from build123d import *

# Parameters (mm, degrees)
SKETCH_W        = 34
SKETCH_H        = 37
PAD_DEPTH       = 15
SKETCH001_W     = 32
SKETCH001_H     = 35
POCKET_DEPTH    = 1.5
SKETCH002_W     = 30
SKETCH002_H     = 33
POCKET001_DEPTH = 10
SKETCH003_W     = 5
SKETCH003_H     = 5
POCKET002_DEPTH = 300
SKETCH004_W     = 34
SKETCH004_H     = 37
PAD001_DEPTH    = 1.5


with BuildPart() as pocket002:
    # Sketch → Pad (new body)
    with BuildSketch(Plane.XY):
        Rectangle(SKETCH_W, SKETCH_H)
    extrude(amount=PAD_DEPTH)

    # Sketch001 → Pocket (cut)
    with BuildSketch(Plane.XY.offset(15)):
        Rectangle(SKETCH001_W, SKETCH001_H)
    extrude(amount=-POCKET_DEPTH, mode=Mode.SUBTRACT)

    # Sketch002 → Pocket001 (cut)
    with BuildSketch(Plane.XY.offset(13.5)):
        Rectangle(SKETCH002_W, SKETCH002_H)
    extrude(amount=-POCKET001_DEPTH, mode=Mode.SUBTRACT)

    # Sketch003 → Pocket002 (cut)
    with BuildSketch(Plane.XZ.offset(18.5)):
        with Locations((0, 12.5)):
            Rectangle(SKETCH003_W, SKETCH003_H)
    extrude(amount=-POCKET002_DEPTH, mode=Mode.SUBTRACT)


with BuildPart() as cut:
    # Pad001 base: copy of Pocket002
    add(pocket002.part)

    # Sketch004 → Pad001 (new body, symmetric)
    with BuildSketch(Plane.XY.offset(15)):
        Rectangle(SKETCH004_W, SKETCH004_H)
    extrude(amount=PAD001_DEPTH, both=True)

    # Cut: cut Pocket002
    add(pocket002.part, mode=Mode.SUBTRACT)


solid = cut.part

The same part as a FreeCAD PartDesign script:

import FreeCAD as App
import Part
import Sketcher
from FreeCAD import Vector

doc = App.newDocument("Part")
params = doc.addObject("Spreadsheet::Sheet", "Params")
for row, (alias, value) in enumerate([
    ("sketch1_width", "34 mm"),
    ("sketch1_height", "37 mm"),
    ("pad1_length", "15 mm"),
    ("sketch2_width", "32 mm"),
    ("sketch2_height", "35 mm"),
    ("pocket1_length", "1.5 mm"),
    ("sketch3_width", "30 mm"),
    ("sketch3_height", "33 mm"),
    ("pocket2_length", "10 mm"),
    ("sketch4_width", "5 mm"),
    ("pocket3_length", "300 mm"),
    ("sketch5_width", "34 mm"),
    ("sketch5_height", "37 mm"),
    ("pad2_length", "3 mm"),
], start=1):
    params.set(f"A{row}", alias)
    params.set(f"B{row}", "=" + value)
    params.setAlias(f"B{row}", alias)

body = doc.addObject("PartDesign::Body", "Body")

# Sketch on XY plane
sketch1 = doc.addObject("Sketcher::SketchObject", "Sketch")
body.addObject(sketch1)
sketch1.AttachmentSupport = (doc.XY_Plane, [""])
sketch1.MapMode = "FlatFace"
sketch1.addGeometry(Part.LineSegment(Vector(-17, 18, 0), Vector(-17, -18, 0)), False)
sketch1.addGeometry(Part.LineSegment(Vector(-17, -18, 0), Vector(17, -18, 0)), False)
sketch1.addGeometry(Part.LineSegment(Vector(17, -18, 0), Vector(17, 18, 0)), False)
sketch1.addGeometry(Part.LineSegment(Vector(17, 18, 0), Vector(-17, 18, 0)), False)
sketch1.addConstraint(Sketcher.Constraint("Coincident", 0, 2, 1, 1))
sketch1.addConstraint(Sketcher.Constraint("Coincident", 1, 2, 2, 1))
sketch1.addConstraint(Sketcher.Constraint("Coincident", 2, 2, 3, 1))
sketch1.addConstraint(Sketcher.Constraint("Coincident", 3, 2, 0, 1))
sketch1.addConstraint(Sketcher.Constraint("Vertical", 0))
sketch1.addConstraint(Sketcher.Constraint("Horizontal", 1))
sketch1.addConstraint(Sketcher.Constraint("Vertical", 2))
sketch1.addConstraint(Sketcher.Constraint("Horizontal", 3))
sketch1.addConstraint(Sketcher.Constraint("Symmetric", 0, 2, 2, 2, -1, 1))
sketch1.addConstraint(Sketcher.Constraint("DistanceX", 1, 1, 1, 2, 34.0))
sketch1.addConstraint(Sketcher.Constraint("DistanceY", 0, 2, 0, 1, 37.0))
sketch1.setExpression("Constraints[9]", "Params.sketch1_width")
sketch1.setExpression("Constraints[10]", "Params.sketch1_height")
pad1 = doc.addObject("PartDesign::Pad", "Pad")
body.addObject(pad1)
pad1.Profile = sketch1
pad1.setExpression("Length", "Params.pad1_length")

# Sketch on XY plane
sketch2 = doc.addObject("Sketcher::SketchObject", "Sketch001")
body.addObject(sketch2)
sketch2.AttachmentSupport = (doc.XY_Plane, [""])
sketch2.MapMode = "FlatFace"
sketch2.AttachmentOffset = App.Placement(Vector(0, 0, 15), App.Rotation())
sketch2.addGeometry(Part.LineSegment(Vector(-16, 18, 0), Vector(-16, -18, 0)), False)
sketch2.addGeometry(Part.LineSegment(Vector(-16, -18, 0), Vector(16, -18, 0)), False)
sketch2.addGeometry(Part.LineSegment(Vector(16, -18, 0), Vector(16, 18, 0)), False)
sketch2.addGeometry(Part.LineSegment(Vector(16, 18, 0), Vector(-16, 18, 0)), False)
sketch2.addConstraint(Sketcher.Constraint("Coincident", 0, 2, 1, 1))
sketch2.addConstraint(Sketcher.Constraint("Coincident", 1, 2, 2, 1))
sketch2.addConstraint(Sketcher.Constraint("Coincident", 2, 2, 3, 1))
sketch2.addConstraint(Sketcher.Constraint("Coincident", 3, 2, 0, 1))
sketch2.addConstraint(Sketcher.Constraint("Vertical", 0))
sketch2.addConstraint(Sketcher.Constraint("Horizontal", 1))
sketch2.addConstraint(Sketcher.Constraint("Vertical", 2))
sketch2.addConstraint(Sketcher.Constraint("Horizontal", 3))
sketch2.addConstraint(Sketcher.Constraint("Symmetric", 0, 2, 2, 2, -1, 1))
sketch2.addConstraint(Sketcher.Constraint("DistanceX", 1, 1, 1, 2, 32.0))
sketch2.addConstraint(Sketcher.Constraint("DistanceY", 0, 2, 0, 1, 35.0))
sketch2.setExpression("Constraints[9]", "Params.sketch2_width")
sketch2.setExpression("Constraints[10]", "Params.sketch2_height")
pocket1 = doc.addObject("PartDesign::Pocket", "Pocket")
body.addObject(pocket1)
pocket1.Profile = sketch2
pocket1.setExpression("Length", "Params.pocket1_length")

# Sketch on XY plane
sketch3 = doc.addObject("Sketcher::SketchObject", "Sketch002")
body.addObject(sketch3)
sketch3.AttachmentSupport = (doc.XY_Plane, [""])
sketch3.MapMode = "FlatFace"
sketch3.AttachmentOffset = App.Placement(Vector(0, 0, 13.5), App.Rotation())
sketch3.addGeometry(Part.LineSegment(Vector(-15, 16, 0), Vector(-15, -16, 0)), False)
sketch3.addGeometry(Part.LineSegment(Vector(-15, -16, 0), Vector(15, -16, 0)), False)
sketch3.addGeometry(Part.LineSegment(Vector(15, -16, 0), Vector(15, 16, 0)), False)
sketch3.addGeometry(Part.LineSegment(Vector(15, 16, 0), Vector(-15, 16, 0)), False)
sketch3.addConstraint(Sketcher.Constraint("Coincident", 0, 2, 1, 1))
sketch3.addConstraint(Sketcher.Constraint("Coincident", 1, 2, 2, 1))
sketch3.addConstraint(Sketcher.Constraint("Coincident", 2, 2, 3, 1))
sketch3.addConstraint(Sketcher.Constraint("Coincident", 3, 2, 0, 1))
sketch3.addConstraint(Sketcher.Constraint("Vertical", 0))
sketch3.addConstraint(Sketcher.Constraint("Horizontal", 1))
sketch3.addConstraint(Sketcher.Constraint("Vertical", 2))
sketch3.addConstraint(Sketcher.Constraint("Horizontal", 3))
sketch3.addConstraint(Sketcher.Constraint("Symmetric", 0, 2, 2, 2, -1, 1))
sketch3.addConstraint(Sketcher.Constraint("DistanceX", 1, 1, 1, 2, 30.0))
sketch3.addConstraint(Sketcher.Constraint("DistanceY", 0, 2, 0, 1, 33.0))
sketch3.setExpression("Constraints[9]", "Params.sketch3_width")
sketch3.setExpression("Constraints[10]", "Params.sketch3_height")
pocket2 = doc.addObject("PartDesign::Pocket", "Pocket001")
body.addObject(pocket2)
pocket2.Profile = sketch3
pocket2.setExpression("Length", "Params.pocket2_length")

# Sketch on XZ plane
sketch4 = doc.addObject("Sketcher::SketchObject", "Sketch003")
body.addObject(sketch4)
sketch4.AttachmentSupport = (doc.XZ_Plane, [""])
sketch4.MapMode = "FlatFace"
sketch4.AttachmentOffset = App.Placement(Vector(0, 0, 18.5), App.Rotation())
sketch4.addGeometry(Part.LineSegment(Vector(-2, 15, 0), Vector(-2, 10, 0)), False)
sketch4.addGeometry(Part.LineSegment(Vector(-2, 10, 0), Vector(2, 10, 0)), False)
sketch4.addGeometry(Part.LineSegment(Vector(2, 10, 0), Vector(2, 15, 0)), False)
sketch4.addGeometry(Part.LineSegment(Vector(2, 15, 0), Vector(-2, 15, 0)), False)
sketch4.addConstraint(Sketcher.Constraint("Coincident", 0, 2, 1, 1))
sketch4.addConstraint(Sketcher.Constraint("Coincident", 1, 2, 2, 1))
sketch4.addConstraint(Sketcher.Constraint("Coincident", 2, 2, 3, 1))
sketch4.addConstraint(Sketcher.Constraint("Coincident", 3, 2, 0, 1))
sketch4.addConstraint(Sketcher.Constraint("Vertical", 0))
sketch4.addConstraint(Sketcher.Constraint("Horizontal", 1))
sketch4.addConstraint(Sketcher.Constraint("Vertical", 2))
sketch4.addConstraint(Sketcher.Constraint("Horizontal", 3))
sketch4.addConstraint(Sketcher.Constraint("Equal", 3, 0))
sketch4.addConstraint(Sketcher.Constraint("DistanceX", 1, 1, 1, 2, 5.0))
sketch4.addConstraint(Sketcher.Constraint("DistanceY", -1, 1, 0, 2, 10.0))
sketch4.addConstraint(Sketcher.Constraint("DistanceX", 0, 2, -1, 1, 2.5))
sketch4.setExpression("Constraints[9]", "Params.sketch4_width")
pocket3 = doc.addObject("PartDesign::Pocket", "Pocket002")
body.addObject(pocket3)
pocket3.Profile = sketch4
pocket3.setExpression("Length", "Params.pocket3_length")
body2 = doc.addObject("PartDesign::Body", "Body001")
doc.recompute()

body2.BaseFeature = body
doc.recompute()

# Sketch on XY plane
sketch5 = doc.addObject("Sketcher::SketchObject", "Sketch004")
body2.addObject(sketch5)
sketch5.AttachmentSupport = (doc.getObject("XY_Plane001"), [""])
sketch5.MapMode = "FlatFace"
sketch5.AttachmentOffset = App.Placement(Vector(0, 0, 15), App.Rotation())
sketch5.addGeometry(Part.LineSegment(Vector(-17, 18, 0), Vector(-17, -18, 0)), False)
sketch5.addGeometry(Part.LineSegment(Vector(-17, -18, 0), Vector(17, -18, 0)), False)
sketch5.addGeometry(Part.LineSegment(Vector(17, -18, 0), Vector(17, 18, 0)), False)
sketch5.addGeometry(Part.LineSegment(Vector(17, 18, 0), Vector(-17, 18, 0)), False)
sketch5.addConstraint(Sketcher.Constraint("Coincident", 0, 2, 1, 1))
sketch5.addConstraint(Sketcher.Constraint("Coincident", 1, 2, 2, 1))
sketch5.addConstraint(Sketcher.Constraint("Coincident", 2, 2, 3, 1))
sketch5.addConstraint(Sketcher.Constraint("Coincident", 3, 2, 0, 1))
sketch5.addConstraint(Sketcher.Constraint("Vertical", 0))
sketch5.addConstraint(Sketcher.Constraint("Horizontal", 1))
sketch5.addConstraint(Sketcher.Constraint("Vertical", 2))
sketch5.addConstraint(Sketcher.Constraint("Horizontal", 3))
sketch5.addConstraint(Sketcher.Constraint("Symmetric", 0, 2, 2, 2, -1, 1))
sketch5.addConstraint(Sketcher.Constraint("DistanceX", 1, 1, 1, 2, 34.0))
sketch5.addConstraint(Sketcher.Constraint("DistanceY", 0, 2, 0, 1, 37.0))
sketch5.setExpression("Constraints[9]", "Params.sketch5_width")
sketch5.setExpression("Constraints[10]", "Params.sketch5_height")
pad2 = doc.addObject("PartDesign::Pad", "Pad001")
body2.addObject(pad2)
pad2.Profile = sketch5
pad2.setExpression("Length", "Params.pad2_length")
pad2.Midplane = True
doc.recompute()

boolean = doc.addObject("PartDesign::Boolean", "Boolean")
body2.addObject(boolean)
boolean.Type = "Cut"
boolean.addObjects([body])

doc.recompute()
